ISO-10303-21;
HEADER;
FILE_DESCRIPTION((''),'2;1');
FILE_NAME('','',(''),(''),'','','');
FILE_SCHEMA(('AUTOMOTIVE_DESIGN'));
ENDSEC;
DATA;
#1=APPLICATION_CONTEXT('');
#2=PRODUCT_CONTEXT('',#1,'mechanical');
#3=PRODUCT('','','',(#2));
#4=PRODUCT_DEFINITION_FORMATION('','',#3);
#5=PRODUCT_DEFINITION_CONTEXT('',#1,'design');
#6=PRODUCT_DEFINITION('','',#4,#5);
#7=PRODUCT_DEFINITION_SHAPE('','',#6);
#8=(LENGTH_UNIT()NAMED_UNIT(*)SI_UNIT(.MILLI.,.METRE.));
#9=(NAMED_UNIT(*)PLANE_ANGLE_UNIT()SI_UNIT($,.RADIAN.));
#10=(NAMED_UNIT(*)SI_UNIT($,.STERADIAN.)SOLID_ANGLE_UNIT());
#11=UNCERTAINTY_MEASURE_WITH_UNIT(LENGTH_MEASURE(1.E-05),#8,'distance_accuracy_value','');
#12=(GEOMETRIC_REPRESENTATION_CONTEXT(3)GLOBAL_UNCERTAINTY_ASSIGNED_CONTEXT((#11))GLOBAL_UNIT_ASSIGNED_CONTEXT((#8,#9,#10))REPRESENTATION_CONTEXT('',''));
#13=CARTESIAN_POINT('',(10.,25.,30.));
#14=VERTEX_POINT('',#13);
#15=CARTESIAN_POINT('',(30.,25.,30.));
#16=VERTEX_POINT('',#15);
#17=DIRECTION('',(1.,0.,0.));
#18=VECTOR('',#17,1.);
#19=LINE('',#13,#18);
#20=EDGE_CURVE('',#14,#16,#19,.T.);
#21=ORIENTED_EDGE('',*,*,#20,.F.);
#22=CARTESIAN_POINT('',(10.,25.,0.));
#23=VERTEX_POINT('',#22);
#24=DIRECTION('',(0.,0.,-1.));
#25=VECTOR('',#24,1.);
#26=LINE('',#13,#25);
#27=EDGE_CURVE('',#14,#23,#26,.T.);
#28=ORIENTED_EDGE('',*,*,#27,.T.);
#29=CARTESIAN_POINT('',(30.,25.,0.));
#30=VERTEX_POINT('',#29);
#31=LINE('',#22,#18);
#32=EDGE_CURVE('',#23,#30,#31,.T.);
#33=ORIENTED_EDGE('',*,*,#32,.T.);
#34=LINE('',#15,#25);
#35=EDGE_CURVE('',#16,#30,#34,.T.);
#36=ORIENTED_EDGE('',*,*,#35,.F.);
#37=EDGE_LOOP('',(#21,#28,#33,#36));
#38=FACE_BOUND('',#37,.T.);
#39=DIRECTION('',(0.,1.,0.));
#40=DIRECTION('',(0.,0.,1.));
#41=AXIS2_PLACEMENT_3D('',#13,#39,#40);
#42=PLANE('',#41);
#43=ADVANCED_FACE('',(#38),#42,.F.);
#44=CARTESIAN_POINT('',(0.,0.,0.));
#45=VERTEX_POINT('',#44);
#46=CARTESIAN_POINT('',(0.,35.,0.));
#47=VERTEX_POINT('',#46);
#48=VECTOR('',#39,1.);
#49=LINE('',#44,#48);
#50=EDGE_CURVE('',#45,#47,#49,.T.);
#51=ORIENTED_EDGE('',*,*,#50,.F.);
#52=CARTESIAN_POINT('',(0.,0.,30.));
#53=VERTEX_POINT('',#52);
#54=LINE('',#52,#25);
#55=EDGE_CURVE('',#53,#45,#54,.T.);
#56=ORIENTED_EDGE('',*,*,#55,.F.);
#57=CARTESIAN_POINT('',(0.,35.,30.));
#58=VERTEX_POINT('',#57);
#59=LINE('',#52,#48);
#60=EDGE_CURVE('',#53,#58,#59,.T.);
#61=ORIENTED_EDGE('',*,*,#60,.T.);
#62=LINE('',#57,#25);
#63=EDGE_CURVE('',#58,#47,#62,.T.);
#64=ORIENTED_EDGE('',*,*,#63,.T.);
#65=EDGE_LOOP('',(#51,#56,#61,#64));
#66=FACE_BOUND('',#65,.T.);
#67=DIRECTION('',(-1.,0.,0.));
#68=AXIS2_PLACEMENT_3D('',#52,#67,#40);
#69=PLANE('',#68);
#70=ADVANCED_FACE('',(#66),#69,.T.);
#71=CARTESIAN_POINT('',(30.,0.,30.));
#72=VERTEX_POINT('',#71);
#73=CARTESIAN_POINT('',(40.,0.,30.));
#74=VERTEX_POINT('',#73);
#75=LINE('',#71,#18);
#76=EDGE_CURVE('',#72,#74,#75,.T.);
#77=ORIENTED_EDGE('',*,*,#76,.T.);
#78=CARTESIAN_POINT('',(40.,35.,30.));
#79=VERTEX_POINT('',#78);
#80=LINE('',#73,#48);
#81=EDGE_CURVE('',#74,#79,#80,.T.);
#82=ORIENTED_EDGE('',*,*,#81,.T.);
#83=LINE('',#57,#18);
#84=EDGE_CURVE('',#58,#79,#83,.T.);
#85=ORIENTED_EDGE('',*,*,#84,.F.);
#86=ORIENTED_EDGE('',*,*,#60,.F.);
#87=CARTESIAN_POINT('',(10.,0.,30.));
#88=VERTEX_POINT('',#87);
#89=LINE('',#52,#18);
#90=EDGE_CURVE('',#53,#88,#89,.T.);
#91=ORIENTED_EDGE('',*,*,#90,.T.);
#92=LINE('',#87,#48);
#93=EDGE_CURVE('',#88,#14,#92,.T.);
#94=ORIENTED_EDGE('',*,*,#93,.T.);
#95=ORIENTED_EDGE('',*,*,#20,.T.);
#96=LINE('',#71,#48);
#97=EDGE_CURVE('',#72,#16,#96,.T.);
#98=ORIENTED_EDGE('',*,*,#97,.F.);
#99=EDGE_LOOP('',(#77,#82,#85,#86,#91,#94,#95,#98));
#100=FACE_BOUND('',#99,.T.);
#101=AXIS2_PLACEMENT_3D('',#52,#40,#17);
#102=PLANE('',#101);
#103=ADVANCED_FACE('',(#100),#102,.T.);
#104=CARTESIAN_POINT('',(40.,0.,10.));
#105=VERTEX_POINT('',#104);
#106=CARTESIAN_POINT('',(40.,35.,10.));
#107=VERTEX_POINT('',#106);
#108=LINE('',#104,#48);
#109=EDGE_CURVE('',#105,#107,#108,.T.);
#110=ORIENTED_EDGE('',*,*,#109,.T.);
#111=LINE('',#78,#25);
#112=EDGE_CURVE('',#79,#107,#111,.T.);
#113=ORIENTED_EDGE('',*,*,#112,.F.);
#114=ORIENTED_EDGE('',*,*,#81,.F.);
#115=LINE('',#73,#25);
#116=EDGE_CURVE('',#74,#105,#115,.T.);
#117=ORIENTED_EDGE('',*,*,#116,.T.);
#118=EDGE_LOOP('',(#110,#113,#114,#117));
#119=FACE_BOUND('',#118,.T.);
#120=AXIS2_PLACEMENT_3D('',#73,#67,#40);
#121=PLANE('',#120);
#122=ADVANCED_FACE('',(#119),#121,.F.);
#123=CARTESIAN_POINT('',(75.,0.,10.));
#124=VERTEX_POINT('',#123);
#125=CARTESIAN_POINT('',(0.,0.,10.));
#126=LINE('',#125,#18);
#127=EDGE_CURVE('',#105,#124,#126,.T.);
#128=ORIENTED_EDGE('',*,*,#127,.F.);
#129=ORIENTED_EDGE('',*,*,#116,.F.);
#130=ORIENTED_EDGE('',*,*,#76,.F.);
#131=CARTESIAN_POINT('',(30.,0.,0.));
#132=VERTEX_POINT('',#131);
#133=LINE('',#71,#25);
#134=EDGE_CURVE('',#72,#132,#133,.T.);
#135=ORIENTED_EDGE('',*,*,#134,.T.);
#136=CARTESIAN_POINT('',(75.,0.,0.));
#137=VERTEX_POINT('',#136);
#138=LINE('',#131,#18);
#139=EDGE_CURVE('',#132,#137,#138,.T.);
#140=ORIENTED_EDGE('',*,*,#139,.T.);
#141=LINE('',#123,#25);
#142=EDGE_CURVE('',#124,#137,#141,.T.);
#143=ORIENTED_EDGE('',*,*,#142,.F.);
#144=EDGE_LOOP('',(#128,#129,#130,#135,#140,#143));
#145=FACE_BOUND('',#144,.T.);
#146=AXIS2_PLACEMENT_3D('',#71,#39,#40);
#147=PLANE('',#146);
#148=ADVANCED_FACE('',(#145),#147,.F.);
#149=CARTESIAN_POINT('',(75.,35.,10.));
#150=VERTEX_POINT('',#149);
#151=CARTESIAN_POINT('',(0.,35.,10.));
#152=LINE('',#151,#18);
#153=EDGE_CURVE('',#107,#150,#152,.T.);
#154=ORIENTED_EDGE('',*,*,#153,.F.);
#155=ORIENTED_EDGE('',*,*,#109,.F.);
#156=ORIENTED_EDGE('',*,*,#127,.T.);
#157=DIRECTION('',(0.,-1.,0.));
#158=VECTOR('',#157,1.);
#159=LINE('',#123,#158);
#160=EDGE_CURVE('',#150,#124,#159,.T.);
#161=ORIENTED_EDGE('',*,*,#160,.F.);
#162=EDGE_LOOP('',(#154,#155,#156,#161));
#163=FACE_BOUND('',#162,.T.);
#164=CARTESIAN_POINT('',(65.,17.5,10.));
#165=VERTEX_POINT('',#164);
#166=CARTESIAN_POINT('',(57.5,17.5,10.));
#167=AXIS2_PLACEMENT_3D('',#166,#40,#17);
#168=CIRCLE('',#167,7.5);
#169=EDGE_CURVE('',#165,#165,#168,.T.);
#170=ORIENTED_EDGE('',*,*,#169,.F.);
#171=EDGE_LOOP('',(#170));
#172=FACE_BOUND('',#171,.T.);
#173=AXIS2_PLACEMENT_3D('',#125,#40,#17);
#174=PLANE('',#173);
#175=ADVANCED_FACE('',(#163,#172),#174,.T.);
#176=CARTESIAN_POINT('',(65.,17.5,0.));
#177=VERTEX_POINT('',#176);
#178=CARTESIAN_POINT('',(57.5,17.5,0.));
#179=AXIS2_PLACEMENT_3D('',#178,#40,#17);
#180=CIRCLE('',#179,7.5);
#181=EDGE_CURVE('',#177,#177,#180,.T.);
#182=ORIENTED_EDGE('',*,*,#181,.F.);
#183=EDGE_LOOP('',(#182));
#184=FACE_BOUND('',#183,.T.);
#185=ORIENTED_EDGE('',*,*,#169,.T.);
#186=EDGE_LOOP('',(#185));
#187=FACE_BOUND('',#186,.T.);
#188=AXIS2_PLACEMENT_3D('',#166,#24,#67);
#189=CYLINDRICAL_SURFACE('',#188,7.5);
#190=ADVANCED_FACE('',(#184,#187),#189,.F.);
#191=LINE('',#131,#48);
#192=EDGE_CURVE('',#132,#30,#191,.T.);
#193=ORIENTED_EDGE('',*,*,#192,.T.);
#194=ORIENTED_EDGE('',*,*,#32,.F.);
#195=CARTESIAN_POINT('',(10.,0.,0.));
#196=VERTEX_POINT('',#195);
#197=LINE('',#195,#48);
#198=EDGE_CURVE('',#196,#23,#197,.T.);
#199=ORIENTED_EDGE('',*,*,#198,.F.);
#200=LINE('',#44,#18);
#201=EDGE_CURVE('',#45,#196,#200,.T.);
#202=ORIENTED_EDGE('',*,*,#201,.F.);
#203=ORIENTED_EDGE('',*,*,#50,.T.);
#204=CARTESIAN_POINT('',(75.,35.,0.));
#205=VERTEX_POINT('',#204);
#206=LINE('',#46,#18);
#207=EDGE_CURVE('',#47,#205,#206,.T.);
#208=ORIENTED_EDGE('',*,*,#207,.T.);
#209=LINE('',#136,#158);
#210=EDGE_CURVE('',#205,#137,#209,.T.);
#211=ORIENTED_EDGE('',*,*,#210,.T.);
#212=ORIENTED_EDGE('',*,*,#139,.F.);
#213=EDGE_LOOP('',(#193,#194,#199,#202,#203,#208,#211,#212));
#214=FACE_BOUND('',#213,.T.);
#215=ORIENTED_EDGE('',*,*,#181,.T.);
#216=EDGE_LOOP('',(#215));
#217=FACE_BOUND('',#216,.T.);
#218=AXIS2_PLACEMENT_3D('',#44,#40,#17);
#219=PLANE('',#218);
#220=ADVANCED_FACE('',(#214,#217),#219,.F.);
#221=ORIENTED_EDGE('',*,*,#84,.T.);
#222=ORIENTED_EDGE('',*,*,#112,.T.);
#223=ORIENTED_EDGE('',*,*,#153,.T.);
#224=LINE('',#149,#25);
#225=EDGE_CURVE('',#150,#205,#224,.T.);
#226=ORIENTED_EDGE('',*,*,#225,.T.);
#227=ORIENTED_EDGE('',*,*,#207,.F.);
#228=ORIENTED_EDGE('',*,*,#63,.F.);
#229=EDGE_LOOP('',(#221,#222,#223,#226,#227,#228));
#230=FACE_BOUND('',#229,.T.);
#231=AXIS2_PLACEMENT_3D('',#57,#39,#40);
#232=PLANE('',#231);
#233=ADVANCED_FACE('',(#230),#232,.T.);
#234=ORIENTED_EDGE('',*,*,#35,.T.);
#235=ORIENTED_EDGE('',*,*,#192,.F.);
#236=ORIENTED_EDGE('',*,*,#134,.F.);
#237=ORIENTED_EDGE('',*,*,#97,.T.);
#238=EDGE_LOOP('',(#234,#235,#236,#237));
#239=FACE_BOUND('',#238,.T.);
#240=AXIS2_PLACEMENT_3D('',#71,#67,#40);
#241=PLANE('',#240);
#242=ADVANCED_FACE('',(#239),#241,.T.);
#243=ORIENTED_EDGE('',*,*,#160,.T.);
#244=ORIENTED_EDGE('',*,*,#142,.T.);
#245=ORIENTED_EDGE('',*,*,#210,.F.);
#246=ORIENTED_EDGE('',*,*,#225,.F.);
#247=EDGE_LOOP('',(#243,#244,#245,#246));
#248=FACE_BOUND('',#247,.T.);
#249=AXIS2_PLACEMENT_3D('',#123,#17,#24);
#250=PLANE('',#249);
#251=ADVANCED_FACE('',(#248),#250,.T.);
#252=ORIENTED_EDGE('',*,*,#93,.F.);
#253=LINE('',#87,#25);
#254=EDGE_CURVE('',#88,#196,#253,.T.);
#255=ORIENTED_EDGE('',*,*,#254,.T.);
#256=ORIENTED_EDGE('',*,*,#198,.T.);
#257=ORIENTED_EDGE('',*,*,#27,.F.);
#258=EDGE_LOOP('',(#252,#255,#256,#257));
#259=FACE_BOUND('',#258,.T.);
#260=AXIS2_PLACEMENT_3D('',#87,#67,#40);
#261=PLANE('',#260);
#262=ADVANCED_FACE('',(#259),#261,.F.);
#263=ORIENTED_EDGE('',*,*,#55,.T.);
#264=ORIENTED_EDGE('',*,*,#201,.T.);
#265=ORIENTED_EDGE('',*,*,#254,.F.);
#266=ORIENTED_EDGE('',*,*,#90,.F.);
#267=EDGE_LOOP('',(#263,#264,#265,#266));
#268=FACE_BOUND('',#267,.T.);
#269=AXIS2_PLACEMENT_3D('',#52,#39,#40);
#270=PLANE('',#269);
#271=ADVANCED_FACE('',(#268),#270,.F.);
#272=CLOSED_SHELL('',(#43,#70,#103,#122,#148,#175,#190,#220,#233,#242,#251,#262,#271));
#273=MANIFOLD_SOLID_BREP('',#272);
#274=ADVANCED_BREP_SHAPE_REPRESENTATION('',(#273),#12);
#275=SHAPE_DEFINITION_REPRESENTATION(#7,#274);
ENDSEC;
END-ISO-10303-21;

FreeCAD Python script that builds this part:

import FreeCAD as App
import Part
import Sketcher


def add_polygon(sketch, points):
    """Adds a closed chain of lines whose ends are joined by coincident constraints."""
    first, n = sketch.GeometryCount, len(points)
    for a, b in zip(points, points[1:] + points[:1]):
        sketch.addGeometry(Part.LineSegment(App.Vector(*a, 0), App.Vector(*b, 0)), False)
    for i in range(n):
        sketch.addConstraint(Sketcher.Constraint("Coincident", first + i, 2, first + (i + 1) % n, 1))

doc = App.newDocument("Part")
params = doc.addObject("Spreadsheet::Sheet", "Params")
for row, (alias, value) in enumerate([
    ("sketch1_width", "20 mm"),
    ("sketch1_width2", "10 mm"),
    ("sketch1_height", "25 mm"),
    ("sketch1_height2", "35 mm"),
    ("pad1_length", "30 mm"),
    ("sketch2_diameter", "15 mm"),
    ("sketch2_width", "10 mm"),
    ("sketch2_width2", "20 mm"),
    ("sketch2_width3", "45 mm"),
    ("sketch2_height", "25 mm"),
    ("pad2_length", "10 mm"),
], start=1):
    params.set(f"A{row}", alias)
    params.set(f"B{row}", "=" + value)
    params.setAlias(f"B{row}", alias)

body = doc.addObject("PartDesign::Body", "Body")

sketch1 = body.newObject("Sketcher::SketchObject", "Sketch")
sketch1.AttachmentSupport = (doc.getObject("XY_Plane"), [""])
sketch1.MapMode = "FlatFace"
add_polygon(sketch1, [(10, 0), (10, 25), (30, 25), (30, 0), (40, 0), (40, 35), (0, 35), (0, 0)])
sketch1.addConstraint([
    Sketcher.Constraint("Vertical", 0),
    Sketcher.Constraint("Horizontal", 1),
    Sketcher.Constraint("Vertical", 2),
    Sketcher.Constraint("Horizontal", 3),
    Sketcher.Constraint("Vertical", 4),
    Sketcher.Constraint("Horizontal", 5),
    Sketcher.Constraint("Vertical", 6),
    Sketcher.Constraint("Horizontal", 7),
    Sketcher.Constraint("Coincident", 6, 2, -1, 1),
    Sketcher.Constraint("PointOnObject", 2, 2, -1),
    Sketcher.Constraint("Equal", 3, 7),
    Sketcher.Constraint("DistanceX", 1, 1, 1, 2, 20.0),
    Sketcher.Constraint("DistanceX", 3, 1, 3, 2, 10.0),
    Sketcher.Constraint("DistanceY", 0, 1, 0, 2, 25.0),
    Sketcher.Constraint("DistanceY", 4, 1, 4, 2, 35.0),
])
sketch1.setExpression("Constraints[19]", "Params.sketch1_width")
sketch1.setExpression("Constraints[20]", "Params.sketch1_width2")
sketch1.setExpression("Constraints[21]", "Params.sketch1_height")
sketch1.setExpression("Constraints[22]", "Params.sketch1_height2")
pad1 = body.newObject("PartDesign::Pad", "Pad")
pad1.Profile = sketch1
pad1.setExpression("Length", "Params.pad1_length")

sketch2 = body.newObject("Sketcher::SketchObject", "Sketch001")
sketch2.AttachmentSupport = (doc.getObject("XY_Plane"), [""])
sketch2.MapMode = "FlatFace"
add_polygon(sketch2, [(0, 0), (10, 0), (10, 25), (30, 25), (30, 0), (75, 0), (75, 35), (0, 35)])
sketch2.addGeometry(Part.Circle(App.Vector(58, 18, 0), App.Vector(0, 0, 1), 8), False)
sketch2.addConstraint([
    Sketcher.Constraint("Horizontal", 0),
    Sketcher.Constraint("Vertical", 1),
    Sketcher.Constraint("Horizontal", 2),
    Sketcher.Constraint("Vertical", 3),
    Sketcher.Constraint("Horizontal", 4),
    Sketcher.Constraint("Vertical", 5),
    Sketcher.Constraint("Horizontal", 6),
    Sketcher.Constraint("Vertical", 7),
    Sketcher.Constraint("Coincident", 7, 2, -1, 1),
    Sketcher.Constraint("PointOnObject", 3, 2, -1),
    Sketcher.Constraint("Diameter", 8, 15.0),
    Sketcher.Constraint("DistanceX", 0, 1, 0, 2, 10.0),
    Sketcher.Constraint("DistanceX", 2, 1, 2, 2, 20.0),
    Sketcher.Constraint("DistanceX", 4, 1, 4, 2, 45.0),
    Sketcher.Constraint("DistanceY", 1, 1, 1, 2, 25.0),
    Sketcher.Constraint("DistanceY", 5, 1, 5, 2, 35.0),
    Sketcher.Constraint("DistanceX", -1, 1, 8, 3, 57.5),
    Sketcher.Constraint("DistanceY", -1, 1, 8, 3, 17.5),
])
sketch2.setExpression("Constraints[18]", "Params.sketch2_diameter")
sketch2.setExpression("Constraints[19]", "Params.sketch2_width")
sketch2.setExpression("Constraints[20]", "Params.sketch2_width2")
sketch2.setExpression("Constraints[21]", "Params.sketch2_width3")
sketch2.setExpression("Constraints[22]", "Params.sketch2_height")
pad2 = body.newObject("PartDesign::Pad", "Pad001")
pad2.Profile = sketch2
pad2.setExpression("Length", "Params.pad2_length")

doc.recompute()
